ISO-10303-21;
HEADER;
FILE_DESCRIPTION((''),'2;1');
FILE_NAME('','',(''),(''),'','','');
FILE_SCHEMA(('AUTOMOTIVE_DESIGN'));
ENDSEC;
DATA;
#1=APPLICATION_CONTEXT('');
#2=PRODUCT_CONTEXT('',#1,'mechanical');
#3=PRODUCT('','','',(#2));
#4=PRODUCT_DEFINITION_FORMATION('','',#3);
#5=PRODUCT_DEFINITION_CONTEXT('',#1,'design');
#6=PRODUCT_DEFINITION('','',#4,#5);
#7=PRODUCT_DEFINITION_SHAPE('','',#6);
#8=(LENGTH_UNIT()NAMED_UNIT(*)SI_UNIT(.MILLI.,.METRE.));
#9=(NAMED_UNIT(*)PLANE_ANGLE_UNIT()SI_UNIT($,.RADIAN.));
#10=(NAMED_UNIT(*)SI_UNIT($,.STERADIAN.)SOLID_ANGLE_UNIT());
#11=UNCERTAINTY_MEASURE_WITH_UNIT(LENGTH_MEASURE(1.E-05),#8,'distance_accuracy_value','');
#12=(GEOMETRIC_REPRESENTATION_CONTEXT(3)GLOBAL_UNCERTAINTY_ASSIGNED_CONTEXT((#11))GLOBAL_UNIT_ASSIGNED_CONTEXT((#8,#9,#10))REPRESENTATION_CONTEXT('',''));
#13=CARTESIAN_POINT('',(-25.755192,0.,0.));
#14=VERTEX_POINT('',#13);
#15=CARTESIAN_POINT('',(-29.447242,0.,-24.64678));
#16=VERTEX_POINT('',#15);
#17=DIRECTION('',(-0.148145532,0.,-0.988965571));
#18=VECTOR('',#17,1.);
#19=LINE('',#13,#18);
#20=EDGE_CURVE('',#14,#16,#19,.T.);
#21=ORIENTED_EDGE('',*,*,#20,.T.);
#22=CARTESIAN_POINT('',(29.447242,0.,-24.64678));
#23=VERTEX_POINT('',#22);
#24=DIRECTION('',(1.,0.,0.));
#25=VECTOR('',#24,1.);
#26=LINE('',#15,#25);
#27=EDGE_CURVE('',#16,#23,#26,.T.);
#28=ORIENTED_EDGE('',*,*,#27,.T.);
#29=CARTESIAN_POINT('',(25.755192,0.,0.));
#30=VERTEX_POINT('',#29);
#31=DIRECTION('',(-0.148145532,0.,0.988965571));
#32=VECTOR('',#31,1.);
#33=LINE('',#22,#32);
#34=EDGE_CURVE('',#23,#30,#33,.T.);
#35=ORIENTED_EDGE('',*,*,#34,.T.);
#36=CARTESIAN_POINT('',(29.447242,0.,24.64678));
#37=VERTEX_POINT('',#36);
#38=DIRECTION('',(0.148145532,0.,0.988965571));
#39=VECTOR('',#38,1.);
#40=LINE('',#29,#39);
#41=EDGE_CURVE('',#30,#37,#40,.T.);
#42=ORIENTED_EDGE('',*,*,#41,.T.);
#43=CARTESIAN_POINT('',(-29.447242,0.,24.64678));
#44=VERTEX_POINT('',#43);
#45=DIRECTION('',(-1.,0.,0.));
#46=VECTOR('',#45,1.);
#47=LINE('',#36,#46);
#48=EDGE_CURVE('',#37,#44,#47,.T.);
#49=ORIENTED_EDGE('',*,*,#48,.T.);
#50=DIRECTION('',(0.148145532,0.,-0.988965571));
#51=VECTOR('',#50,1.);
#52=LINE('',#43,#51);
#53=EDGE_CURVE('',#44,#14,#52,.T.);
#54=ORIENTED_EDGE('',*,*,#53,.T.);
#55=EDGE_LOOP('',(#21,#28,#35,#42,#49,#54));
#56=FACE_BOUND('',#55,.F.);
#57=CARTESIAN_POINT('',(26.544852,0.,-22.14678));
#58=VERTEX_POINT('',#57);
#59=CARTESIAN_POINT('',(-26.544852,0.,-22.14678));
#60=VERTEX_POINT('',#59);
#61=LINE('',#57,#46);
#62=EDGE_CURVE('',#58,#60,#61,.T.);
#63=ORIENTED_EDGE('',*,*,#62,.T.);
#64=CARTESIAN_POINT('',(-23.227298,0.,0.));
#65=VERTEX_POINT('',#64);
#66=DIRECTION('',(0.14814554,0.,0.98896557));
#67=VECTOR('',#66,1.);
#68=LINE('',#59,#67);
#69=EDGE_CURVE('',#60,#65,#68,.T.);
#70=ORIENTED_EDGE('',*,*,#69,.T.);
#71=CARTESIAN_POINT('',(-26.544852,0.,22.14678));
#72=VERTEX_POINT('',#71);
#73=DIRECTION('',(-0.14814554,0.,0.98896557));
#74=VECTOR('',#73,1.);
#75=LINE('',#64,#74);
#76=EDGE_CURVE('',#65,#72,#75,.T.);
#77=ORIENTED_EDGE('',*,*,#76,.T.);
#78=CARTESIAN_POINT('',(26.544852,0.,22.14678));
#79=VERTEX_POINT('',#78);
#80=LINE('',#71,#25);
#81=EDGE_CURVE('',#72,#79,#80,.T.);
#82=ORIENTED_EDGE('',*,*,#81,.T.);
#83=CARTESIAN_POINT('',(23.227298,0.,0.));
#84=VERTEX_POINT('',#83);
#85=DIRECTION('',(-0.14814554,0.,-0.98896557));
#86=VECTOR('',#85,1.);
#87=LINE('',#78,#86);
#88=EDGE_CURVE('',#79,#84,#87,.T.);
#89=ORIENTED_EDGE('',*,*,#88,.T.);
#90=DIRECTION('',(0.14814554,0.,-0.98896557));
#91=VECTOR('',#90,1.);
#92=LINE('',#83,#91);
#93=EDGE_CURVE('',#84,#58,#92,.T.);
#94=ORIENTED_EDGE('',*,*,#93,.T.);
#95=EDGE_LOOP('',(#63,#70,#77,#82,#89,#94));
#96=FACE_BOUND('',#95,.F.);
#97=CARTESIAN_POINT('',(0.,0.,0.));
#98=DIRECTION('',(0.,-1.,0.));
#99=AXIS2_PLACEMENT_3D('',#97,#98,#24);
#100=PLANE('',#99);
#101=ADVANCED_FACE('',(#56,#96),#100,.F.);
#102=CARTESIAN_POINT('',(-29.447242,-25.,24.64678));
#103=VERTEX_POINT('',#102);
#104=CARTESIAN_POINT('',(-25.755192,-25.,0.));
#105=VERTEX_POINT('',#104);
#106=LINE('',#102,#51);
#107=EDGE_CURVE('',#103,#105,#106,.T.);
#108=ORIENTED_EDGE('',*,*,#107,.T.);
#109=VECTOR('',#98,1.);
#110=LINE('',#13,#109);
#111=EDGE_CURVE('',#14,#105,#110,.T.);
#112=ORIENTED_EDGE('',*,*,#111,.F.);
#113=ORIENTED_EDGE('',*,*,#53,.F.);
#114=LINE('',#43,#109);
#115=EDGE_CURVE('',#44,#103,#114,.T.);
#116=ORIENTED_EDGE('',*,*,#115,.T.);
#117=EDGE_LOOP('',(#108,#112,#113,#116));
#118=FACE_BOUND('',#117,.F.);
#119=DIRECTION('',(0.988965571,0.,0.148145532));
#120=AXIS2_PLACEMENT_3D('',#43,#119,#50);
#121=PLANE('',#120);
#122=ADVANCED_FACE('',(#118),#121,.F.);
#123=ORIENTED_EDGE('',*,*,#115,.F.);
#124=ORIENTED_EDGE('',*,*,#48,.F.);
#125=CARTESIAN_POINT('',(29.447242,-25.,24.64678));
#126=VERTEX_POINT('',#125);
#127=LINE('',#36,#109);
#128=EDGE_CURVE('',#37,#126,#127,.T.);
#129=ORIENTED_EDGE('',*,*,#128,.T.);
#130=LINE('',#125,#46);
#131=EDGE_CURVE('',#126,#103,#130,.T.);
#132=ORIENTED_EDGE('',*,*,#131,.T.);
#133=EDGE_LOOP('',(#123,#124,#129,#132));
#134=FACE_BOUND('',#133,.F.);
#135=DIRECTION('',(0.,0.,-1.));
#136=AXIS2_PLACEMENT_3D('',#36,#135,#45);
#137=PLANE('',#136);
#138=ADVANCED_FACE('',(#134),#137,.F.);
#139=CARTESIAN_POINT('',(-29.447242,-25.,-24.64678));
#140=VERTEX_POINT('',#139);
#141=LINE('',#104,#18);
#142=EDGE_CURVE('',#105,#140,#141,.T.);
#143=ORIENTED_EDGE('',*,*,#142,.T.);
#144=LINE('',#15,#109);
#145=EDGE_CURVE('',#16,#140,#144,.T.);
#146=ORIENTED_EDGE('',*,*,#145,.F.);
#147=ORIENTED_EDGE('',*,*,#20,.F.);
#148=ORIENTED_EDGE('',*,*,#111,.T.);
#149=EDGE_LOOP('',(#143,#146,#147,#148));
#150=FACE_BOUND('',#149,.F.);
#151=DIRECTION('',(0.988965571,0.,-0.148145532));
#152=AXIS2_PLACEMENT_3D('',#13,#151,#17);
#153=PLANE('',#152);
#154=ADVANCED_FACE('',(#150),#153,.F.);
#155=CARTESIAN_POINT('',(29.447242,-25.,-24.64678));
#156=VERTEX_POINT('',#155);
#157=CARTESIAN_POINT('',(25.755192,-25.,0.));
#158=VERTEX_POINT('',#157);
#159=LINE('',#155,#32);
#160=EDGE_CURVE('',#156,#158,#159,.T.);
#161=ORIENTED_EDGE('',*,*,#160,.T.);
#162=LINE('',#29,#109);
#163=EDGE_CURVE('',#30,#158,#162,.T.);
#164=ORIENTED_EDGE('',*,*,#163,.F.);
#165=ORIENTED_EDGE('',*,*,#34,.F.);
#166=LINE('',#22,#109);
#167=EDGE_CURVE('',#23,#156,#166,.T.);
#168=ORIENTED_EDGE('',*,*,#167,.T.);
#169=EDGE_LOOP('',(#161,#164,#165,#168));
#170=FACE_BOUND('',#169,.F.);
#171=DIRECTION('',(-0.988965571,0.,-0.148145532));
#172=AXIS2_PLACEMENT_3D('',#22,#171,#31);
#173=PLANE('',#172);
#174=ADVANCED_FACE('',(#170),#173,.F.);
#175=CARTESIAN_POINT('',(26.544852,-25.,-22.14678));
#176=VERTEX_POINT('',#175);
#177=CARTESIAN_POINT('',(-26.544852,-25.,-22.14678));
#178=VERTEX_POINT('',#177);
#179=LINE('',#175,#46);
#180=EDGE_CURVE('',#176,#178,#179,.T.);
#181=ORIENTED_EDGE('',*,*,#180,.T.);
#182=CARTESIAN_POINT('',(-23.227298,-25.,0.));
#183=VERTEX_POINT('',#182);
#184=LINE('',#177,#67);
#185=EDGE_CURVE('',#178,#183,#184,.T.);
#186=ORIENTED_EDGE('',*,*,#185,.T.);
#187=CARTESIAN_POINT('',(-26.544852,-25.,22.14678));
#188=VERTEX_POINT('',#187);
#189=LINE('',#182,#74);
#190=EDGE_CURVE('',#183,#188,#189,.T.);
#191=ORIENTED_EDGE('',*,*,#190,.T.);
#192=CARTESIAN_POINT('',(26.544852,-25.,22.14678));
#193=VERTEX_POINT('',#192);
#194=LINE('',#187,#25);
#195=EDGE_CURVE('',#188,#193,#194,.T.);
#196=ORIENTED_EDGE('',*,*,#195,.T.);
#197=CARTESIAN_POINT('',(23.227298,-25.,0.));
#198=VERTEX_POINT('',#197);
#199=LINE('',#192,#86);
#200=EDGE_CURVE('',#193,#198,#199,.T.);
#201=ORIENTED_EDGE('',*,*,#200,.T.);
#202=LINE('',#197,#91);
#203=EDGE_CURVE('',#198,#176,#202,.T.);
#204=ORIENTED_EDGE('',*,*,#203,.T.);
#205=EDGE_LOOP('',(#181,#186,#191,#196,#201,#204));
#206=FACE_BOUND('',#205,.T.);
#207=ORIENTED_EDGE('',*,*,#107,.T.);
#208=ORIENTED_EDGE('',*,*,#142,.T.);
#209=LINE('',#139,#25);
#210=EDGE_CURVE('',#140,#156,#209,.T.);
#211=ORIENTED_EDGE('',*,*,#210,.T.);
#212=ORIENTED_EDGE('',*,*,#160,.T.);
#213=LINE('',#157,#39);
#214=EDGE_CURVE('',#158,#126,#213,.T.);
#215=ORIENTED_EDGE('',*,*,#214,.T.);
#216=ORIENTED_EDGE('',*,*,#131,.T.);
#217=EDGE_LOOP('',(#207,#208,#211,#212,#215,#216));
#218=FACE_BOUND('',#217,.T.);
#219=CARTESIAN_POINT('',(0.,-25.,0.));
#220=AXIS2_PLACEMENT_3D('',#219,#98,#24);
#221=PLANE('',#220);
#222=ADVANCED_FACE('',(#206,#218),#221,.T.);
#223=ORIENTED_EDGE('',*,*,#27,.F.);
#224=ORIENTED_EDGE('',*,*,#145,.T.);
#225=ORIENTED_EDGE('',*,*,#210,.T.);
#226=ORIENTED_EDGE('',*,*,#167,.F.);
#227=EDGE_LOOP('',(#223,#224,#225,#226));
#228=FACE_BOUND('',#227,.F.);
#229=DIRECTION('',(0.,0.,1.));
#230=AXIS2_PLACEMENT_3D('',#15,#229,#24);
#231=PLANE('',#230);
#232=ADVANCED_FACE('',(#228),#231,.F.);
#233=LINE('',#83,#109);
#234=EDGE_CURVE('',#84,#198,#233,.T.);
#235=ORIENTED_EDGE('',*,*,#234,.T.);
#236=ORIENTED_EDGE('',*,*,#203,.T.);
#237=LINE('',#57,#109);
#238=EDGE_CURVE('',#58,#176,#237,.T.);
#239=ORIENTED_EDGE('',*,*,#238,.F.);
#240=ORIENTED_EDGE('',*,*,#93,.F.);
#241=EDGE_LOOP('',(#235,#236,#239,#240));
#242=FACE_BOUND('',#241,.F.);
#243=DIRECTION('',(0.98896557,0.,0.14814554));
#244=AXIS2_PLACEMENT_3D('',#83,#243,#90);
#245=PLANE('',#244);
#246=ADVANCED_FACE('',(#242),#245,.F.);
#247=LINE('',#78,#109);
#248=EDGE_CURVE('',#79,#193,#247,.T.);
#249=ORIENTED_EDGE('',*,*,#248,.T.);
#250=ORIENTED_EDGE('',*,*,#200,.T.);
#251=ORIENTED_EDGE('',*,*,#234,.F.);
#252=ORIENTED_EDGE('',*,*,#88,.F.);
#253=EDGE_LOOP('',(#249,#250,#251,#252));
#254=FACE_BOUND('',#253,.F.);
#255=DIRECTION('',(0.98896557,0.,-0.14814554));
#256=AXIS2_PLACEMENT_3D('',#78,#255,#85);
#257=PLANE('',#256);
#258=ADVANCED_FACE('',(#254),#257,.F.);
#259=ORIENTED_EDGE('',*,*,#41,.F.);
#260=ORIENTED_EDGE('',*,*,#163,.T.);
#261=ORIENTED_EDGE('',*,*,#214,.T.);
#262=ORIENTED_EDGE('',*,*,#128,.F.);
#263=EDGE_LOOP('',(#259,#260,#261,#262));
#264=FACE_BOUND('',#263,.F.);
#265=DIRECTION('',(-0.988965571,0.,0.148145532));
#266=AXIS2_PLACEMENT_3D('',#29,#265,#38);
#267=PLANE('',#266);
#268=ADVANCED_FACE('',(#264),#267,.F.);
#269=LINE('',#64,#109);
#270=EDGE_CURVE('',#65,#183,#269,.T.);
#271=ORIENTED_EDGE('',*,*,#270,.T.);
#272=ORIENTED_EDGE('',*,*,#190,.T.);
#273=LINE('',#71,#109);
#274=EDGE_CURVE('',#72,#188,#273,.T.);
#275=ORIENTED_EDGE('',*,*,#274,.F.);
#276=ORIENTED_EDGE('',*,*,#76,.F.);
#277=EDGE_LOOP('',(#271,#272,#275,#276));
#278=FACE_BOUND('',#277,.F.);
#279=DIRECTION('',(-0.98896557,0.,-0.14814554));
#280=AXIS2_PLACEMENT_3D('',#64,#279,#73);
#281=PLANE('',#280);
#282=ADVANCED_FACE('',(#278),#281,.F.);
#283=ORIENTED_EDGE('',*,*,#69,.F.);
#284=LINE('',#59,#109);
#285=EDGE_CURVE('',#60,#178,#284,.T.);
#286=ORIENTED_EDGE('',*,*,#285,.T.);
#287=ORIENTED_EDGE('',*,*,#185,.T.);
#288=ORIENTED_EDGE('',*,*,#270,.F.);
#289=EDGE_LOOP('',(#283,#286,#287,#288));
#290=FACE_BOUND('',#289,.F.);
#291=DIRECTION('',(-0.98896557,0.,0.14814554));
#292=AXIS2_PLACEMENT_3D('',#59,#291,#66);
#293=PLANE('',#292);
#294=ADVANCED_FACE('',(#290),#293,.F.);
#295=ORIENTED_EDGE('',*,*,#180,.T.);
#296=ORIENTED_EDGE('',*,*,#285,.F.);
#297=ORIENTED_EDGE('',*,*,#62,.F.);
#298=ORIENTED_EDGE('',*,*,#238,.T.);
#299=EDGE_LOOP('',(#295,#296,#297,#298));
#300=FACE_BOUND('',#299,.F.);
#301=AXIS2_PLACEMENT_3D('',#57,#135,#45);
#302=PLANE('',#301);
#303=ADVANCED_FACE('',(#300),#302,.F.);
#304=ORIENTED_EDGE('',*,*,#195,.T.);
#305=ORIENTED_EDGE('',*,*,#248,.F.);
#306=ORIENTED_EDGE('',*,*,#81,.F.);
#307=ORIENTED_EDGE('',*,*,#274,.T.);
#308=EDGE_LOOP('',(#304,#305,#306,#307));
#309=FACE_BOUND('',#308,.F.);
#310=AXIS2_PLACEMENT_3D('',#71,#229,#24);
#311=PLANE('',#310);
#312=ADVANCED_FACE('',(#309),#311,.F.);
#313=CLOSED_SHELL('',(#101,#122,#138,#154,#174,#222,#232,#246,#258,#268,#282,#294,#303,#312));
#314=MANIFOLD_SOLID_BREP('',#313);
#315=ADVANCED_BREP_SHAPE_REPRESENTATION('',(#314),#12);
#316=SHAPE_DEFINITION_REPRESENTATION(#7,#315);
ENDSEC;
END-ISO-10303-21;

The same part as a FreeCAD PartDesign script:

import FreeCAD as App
import Part
import Sketcher
from FreeCAD import Vector
Q = App.Units.Quantity

doc = App.newDocument("Part")
body = doc.addObject("PartDesign::Body", "Body")

# Sketch on XZ plane
sketch1 = body.newObject("Sketcher::SketchObject", "Sketch")
sketch1.AttachmentSupport = (doc.getObject("XZ_Plane"), [""])
sketch1.MapMode = "FlatFace"
sketch1.addGeometry([
    Part.LineSegment(Vector(-29, -25, 0), Vector(29, -25, 0)),  # 0
    Part.LineSegment(Vector(29, -25, 0), Vector(26, 0, 0)),  # 1
    Part.LineSegment(Vector(26, 0, 0), Vector(29, 25, 0)),  # 2
    Part.LineSegment(Vector(29, 25, 0), Vector(-29, 25, 0)),  # 3
    Part.LineSegment(Vector(-29, 25, 0), Vector(-26, 0, 0)),  # 4
    Part.LineSegment(Vector(-26, 0, 0), Vector(-29, -25, 0)),  # 5
    Part.LineSegment(Vector(23, 0, 0), Vector(27, -22, 0)),  # 6
    Part.LineSegment(Vector(27, -22, 0), Vector(-27, -22, 0)),  # 7
    Part.LineSegment(Vector(-27, -22, 0), Vector(-23, 0, 0)),  # 8
    Part.LineSegment(Vector(-23, 0, 0), Vector(-27, 22, 0)),  # 9
    Part.LineSegment(Vector(-27, 22, 0), Vector(27, 22, 0)),  # 10
    Part.LineSegment(Vector(27, 22, 0), Vector(23, 0, 0)),  # 11
], False)
sketch1.addConstraint([
    Sketcher.Constraint("Coincident", 0, 2, 1, 1),
    Sketcher.Constraint("Coincident", 1, 2, 2, 1),
    Sketcher.Constraint("Coincident", 2, 2, 3, 1),
    Sketcher.Constraint("Coincident", 3, 2, 4, 1),
    Sketcher.Constraint("Coincident", 4, 2, 5, 1),
    Sketcher.Constraint("Coincident", 5, 2, 0, 1),
    Sketcher.Constraint("Coincident", 6, 2, 7, 1),
    Sketcher.Constraint("Coincident", 7, 2, 8, 1),
    Sketcher.Constraint("Coincident", 8, 2, 9, 1),
    Sketcher.Constraint("Coincident", 9, 2, 10, 1),
    Sketcher.Constraint("Coincident", 10, 2, 11, 1),
    Sketcher.Constraint("Coincident", 11, 2, 6, 1),
    Sketcher.Constraint("Horizontal", 0),
    Sketcher.Constraint("Horizontal", 3),
    Sketcher.Constraint("Horizontal", 7),
    Sketcher.Constraint("Horizontal", 10),
    Sketcher.Constraint("Symmetric", 0, 2, 3, 2, -1, 1),
    Sketcher.Constraint("Symmetric", 1, 2, 4, 2, -1, 1),
    Sketcher.Constraint("Symmetric", 6, 2, 9, 2, -1, 1),
    Sketcher.Constraint("Symmetric", 8, 2, 11, 2, -1, 1),
    Sketcher.Constraint("PointOnObject", 1, 2, -1),
    Sketcher.Constraint("PointOnObject", 8, 2, -1),
    Sketcher.Constraint("Parallel", 2, 5),
    Sketcher.Constraint("Parallel", 4, 6),
    Sketcher.Constraint("Parallel", 5, 8),
    Sketcher.Constraint("Parallel", 8, 11),
    Sketcher.Constraint("Vertical", 0, 2, 2, 2),
    Sketcher.Constraint("DistanceY", 0, 2, 6, 2, Q("2.5 mm")),
    Sketcher.Constraint("DistanceX", 8, 2, -1, 1, Q("23.227298 mm")),
    Sketcher.Constraint("DistanceX", 0, 1, 0, 2, Q("58.894484 mm")),
    Sketcher.Constraint("DistanceX", 7, 2, 7, 1, Q("53.089704 mm")),
    Sketcher.Constraint("DistanceY", 0, 2, -1, 1, Q("24.64678 mm")),
])
pad1 = body.newObject("PartDesign::Pad", "Pad")
pad1.Profile = sketch1
pad1.Length = 25

doc.recompute()
